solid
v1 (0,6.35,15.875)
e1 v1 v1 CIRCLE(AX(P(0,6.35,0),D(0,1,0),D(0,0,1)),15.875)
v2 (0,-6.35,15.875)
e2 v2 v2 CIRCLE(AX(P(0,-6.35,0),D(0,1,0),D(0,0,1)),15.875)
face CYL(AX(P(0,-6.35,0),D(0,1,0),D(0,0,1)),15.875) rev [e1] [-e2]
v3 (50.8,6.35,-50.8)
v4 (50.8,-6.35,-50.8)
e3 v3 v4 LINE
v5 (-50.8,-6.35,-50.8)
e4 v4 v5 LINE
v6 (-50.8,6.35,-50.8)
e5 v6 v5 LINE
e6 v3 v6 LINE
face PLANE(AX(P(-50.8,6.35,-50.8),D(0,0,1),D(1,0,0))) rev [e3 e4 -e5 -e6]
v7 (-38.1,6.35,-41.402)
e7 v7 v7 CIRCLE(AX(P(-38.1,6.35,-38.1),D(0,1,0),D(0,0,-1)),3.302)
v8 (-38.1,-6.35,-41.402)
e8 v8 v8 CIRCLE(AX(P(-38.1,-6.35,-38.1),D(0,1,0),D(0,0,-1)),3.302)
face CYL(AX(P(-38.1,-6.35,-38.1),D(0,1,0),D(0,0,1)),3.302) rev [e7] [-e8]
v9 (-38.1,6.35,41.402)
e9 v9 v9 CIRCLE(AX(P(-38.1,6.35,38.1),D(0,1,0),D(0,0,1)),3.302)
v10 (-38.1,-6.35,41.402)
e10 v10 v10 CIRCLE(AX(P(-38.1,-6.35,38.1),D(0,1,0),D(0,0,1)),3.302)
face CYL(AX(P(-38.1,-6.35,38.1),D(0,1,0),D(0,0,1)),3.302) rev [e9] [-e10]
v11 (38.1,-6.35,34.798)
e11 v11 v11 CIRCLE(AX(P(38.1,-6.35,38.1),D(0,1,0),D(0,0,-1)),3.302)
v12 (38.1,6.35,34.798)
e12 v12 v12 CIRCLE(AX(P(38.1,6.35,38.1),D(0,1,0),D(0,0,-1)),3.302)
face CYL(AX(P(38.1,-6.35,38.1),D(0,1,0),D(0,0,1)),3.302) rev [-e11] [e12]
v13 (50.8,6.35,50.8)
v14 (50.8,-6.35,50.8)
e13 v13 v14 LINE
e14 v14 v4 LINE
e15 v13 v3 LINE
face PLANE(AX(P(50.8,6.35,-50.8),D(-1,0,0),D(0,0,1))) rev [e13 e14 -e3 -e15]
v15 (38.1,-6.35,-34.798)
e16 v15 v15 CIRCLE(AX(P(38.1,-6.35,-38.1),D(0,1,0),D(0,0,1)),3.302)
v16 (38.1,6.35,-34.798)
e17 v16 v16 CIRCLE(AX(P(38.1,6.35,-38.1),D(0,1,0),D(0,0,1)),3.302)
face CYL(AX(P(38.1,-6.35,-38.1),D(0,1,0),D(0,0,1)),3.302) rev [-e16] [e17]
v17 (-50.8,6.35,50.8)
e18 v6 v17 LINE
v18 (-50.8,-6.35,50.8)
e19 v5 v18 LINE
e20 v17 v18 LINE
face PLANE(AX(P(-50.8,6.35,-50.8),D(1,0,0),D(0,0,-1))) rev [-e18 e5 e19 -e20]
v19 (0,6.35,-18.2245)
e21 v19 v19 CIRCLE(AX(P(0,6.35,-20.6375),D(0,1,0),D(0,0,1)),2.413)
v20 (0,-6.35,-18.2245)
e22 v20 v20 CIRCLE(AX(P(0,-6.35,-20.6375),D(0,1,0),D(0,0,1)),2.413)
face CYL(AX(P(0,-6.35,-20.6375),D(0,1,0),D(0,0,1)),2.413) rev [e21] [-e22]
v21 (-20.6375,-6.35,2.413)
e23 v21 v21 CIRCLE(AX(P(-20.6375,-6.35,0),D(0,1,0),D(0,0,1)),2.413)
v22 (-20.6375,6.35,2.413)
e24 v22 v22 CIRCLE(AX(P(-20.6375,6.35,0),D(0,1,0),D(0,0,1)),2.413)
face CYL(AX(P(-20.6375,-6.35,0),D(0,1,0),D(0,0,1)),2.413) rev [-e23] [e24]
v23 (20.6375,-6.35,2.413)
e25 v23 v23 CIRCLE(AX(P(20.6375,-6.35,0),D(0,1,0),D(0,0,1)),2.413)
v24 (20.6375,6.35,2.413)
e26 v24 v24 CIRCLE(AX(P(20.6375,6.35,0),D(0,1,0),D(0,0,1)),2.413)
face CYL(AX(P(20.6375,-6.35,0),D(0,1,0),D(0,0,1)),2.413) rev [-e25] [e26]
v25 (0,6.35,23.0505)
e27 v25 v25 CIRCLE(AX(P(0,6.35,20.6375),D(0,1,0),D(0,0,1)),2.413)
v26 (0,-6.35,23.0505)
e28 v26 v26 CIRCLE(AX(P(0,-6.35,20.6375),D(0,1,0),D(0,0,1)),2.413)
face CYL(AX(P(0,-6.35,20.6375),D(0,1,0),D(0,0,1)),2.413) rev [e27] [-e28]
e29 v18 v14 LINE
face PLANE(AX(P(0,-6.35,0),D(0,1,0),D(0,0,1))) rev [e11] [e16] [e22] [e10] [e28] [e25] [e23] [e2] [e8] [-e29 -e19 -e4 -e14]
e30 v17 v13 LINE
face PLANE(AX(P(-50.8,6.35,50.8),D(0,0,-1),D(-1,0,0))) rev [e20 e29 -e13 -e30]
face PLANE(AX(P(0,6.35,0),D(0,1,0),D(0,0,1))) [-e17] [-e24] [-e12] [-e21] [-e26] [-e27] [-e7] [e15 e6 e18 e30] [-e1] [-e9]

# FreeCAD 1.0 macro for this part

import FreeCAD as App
import Part
import Sketcher
Q = App.Units.Quantity

doc = App.newDocument("Part")
params = doc.addObject("Spreadsheet::Sheet", "Params")
for row, (alias, value) in enumerate([
    ("sketch1_width", "4 in"),
    ("pad1_length", "0.5 in"),
    ("sketch2_diameter", "0.26 in"),
    ("sketch3_diameter", "1.25 in"),
    ("sketch3_diameter2", "0.19 in"),
], start=1):
    params.set(f"A{row}", alias)
    params.set(f"B{row}", "=" + value)
    params.setAlias(f"B{row}", alias)

body = doc.addObject("PartDesign::Body", "Body")

# Sketch on XZ plane
sketch1 = doc.addObject("Sketcher::SketchObject", "Sketch")
body.addObject(sketch1)
sketch1.AttachmentSupport = (doc.XZ_Plane, [""])
sketch1.MapMode = "FlatFace"
sketch1.addGeometry([
    Part.LineSegment(App.Vector(-51, -51, 0), App.Vector(-51, 51, 0)),
    Part.LineSegment(App.Vector(-51, 51, 0), App.Vector(51, 51, 0)),
    Part.LineSegment(App.Vector(51, 51, 0), App.Vector(51, -51, 0)),
    Part.LineSegment(App.Vector(51, -51, 0), App.Vector(-51, -51, 0)),
], False)
sketch1.addConstraint([
    Sketcher.Constraint("Coincident", 0, 2, 1, 1),
    Sketcher.Constraint("Coincident", 1, 2, 2, 1),
    Sketcher.Constraint("Coincident", 2, 2, 3, 1),
    Sketcher.Constraint("Coincident", 3, 2, 0, 1),
    Sketcher.Constraint("Vertical", 0),
    Sketcher.Constraint("Horizontal", 1),
    Sketcher.Constraint("Vertical", 2),
    Sketcher.Constraint("Horizontal", 3),
    Sketcher.Constraint("Symmetric", 0, 2, 2, 2, -1, 1),
    Sketcher.Constraint("Equal", 3, 0),
    Sketcher.Constraint("DistanceX", 1, 1, 1, 2, Q("4 in")),
])
sketch1.setExpression("Constraints[10]", "Params.sketch1_width")
pad1 = doc.addObject("PartDesign::Pad", "Pad")
body.addObject(pad1)
pad1.Profile = sketch1
pad1.setExpression("Length", "Params.pad1_length")
pad1.Midplane = True

# Sketch on XZ plane
sketch2 = doc.addObject("Sketcher::SketchObject", "Sketch001")
body.addObject(sketch2)
sketch2.AttachmentSupport = (doc.XZ_Plane, [""])
sketch2.MapMode = "FlatFace"
sketch2.AttachmentOffset = App.Placement(App.Vector(0, 0, -0.25 * 25.4), App.Rotation())
sketch2.addGeometry([
    Part.Circle(App.Vector(-38.1, 38.1, 0), App.Vector(0, 0, 1), 3.3),
    Part.Circle(App.Vector(-38.1, -38.1, 0), App.Vector(0, 0, 1), 3.3),
    Part.Circle(App.Vector(38.1, 38.1, 0), App.Vector(0, 0, 1), 3.3),
    Part.Circle(App.Vector(38.1, -38.1, 0), App.Vector(0, 0, 1), 3.3),
], False)
sketch2.addConstraint([
    Sketcher.Constraint("Equal", 0, 1),
    Sketcher.Constraint("Equal", 1, 2),
    Sketcher.Constraint("Equal", 2, 3),
    Sketcher.Constraint("Symmetric", 1, 3, 2, 3, -1, 1),
    Sketcher.Constraint("Symmetric", 0, 3, 3, 3, -1, 1),
    Sketcher.Constraint("Symmetric", 0, 3, 2, 3, -2),
    Sketcher.Constraint("Diameter", 0, Q("0.26 in")),
    Sketcher.Constraint("DistanceY", 1, 3, 0, 3, Q("3 in")),
    Sketcher.Constraint("DistanceX", 0, 3, 2, 3, Q("3 in")),
])
sketch2.setExpression("Constraints[6]", "Params.sketch2_diameter")
pocket1 = doc.addObject("PartDesign::Pocket", "Pocket")
body.addObject(pocket1)
pocket1.Profile = sketch2
pocket1.Type = "ThroughAll"
pocket1.Reversed = True

# Sketch on XZ plane
sketch3 = doc.addObject("Sketcher::SketchObject", "Sketch002")
body.addObject(sketch3)
sketch3.AttachmentSupport = (doc.XZ_Plane, [""])
sketch3.MapMode = "FlatFace"
sketch3.AttachmentOffset = App.Placement(App.Vector(0, 0, -0.25 * 25.4), App.Rotation())
sketch3.addGeometry([
    Part.Circle(App.Vector(0, 0, 0), App.Vector(0, 0, 1), 15.9),  # 0
    Part.Circle(App.Vector(0, -20.6, 0), App.Vector(0, 0, 1), 2.4),  # 1
    Part.Circle(App.Vector(20.6, 0, 0), App.Vector(0, 0, 1), 2.4),  # 2
    Part.Circle(App.Vector(0, 20.6, 0), App.Vector(0, 0, 1), 2.4),  # 3
    Part.Circle(App.Vector(-20.6, 0, 0), App.Vector(0, 0, 1), 2.4),  # 4
], False)
sketch3.addConstraint([
    Sketcher.Constraint("Coincident", 0, 3, -1, 1),
    Sketcher.Constraint("Equal", 1, 2),
    Sketcher.Constraint("Equal", 2, 3),
    Sketcher.Constraint("Equal", 3, 4),
    Sketcher.Constraint("Symmetric", 1, 3, 3, 3, -1, 1),
    Sketcher.Constraint("Symmetric", 2, 3, 4, 3, -1, 1),
    Sketcher.Constraint("PointOnObject", 1, 3, -2),
    Sketcher.Constraint("PointOnObject", 2, 3, -1),
    Sketcher.Constraint("Diameter", 0, Q("1.25 in")),
    Sketcher.Constraint("Diameter", 1, Q("0.19 in")),
    Sketcher.Constraint("DistanceY", 1, 3, -1, 1, Q("0.8125 in")),
    Sketcher.Constraint("DistanceX", -1, 1, 2, 3, Q("0.8125 in")),
])
sketch3.setExpression("Constraints[8]", "Params.sketch3_diameter")
sketch3.setExpression("Constraints[9]", "Params.sketch3_diameter2")
pocket2 = doc.addObject("PartDesign::Pocket", "Pocket001")
body.addObject(pocket2)
pocket2.Profile = sketch3
pocket2.Type = "ThroughAll"
pocket2.Reversed = True

doc.recompute()
